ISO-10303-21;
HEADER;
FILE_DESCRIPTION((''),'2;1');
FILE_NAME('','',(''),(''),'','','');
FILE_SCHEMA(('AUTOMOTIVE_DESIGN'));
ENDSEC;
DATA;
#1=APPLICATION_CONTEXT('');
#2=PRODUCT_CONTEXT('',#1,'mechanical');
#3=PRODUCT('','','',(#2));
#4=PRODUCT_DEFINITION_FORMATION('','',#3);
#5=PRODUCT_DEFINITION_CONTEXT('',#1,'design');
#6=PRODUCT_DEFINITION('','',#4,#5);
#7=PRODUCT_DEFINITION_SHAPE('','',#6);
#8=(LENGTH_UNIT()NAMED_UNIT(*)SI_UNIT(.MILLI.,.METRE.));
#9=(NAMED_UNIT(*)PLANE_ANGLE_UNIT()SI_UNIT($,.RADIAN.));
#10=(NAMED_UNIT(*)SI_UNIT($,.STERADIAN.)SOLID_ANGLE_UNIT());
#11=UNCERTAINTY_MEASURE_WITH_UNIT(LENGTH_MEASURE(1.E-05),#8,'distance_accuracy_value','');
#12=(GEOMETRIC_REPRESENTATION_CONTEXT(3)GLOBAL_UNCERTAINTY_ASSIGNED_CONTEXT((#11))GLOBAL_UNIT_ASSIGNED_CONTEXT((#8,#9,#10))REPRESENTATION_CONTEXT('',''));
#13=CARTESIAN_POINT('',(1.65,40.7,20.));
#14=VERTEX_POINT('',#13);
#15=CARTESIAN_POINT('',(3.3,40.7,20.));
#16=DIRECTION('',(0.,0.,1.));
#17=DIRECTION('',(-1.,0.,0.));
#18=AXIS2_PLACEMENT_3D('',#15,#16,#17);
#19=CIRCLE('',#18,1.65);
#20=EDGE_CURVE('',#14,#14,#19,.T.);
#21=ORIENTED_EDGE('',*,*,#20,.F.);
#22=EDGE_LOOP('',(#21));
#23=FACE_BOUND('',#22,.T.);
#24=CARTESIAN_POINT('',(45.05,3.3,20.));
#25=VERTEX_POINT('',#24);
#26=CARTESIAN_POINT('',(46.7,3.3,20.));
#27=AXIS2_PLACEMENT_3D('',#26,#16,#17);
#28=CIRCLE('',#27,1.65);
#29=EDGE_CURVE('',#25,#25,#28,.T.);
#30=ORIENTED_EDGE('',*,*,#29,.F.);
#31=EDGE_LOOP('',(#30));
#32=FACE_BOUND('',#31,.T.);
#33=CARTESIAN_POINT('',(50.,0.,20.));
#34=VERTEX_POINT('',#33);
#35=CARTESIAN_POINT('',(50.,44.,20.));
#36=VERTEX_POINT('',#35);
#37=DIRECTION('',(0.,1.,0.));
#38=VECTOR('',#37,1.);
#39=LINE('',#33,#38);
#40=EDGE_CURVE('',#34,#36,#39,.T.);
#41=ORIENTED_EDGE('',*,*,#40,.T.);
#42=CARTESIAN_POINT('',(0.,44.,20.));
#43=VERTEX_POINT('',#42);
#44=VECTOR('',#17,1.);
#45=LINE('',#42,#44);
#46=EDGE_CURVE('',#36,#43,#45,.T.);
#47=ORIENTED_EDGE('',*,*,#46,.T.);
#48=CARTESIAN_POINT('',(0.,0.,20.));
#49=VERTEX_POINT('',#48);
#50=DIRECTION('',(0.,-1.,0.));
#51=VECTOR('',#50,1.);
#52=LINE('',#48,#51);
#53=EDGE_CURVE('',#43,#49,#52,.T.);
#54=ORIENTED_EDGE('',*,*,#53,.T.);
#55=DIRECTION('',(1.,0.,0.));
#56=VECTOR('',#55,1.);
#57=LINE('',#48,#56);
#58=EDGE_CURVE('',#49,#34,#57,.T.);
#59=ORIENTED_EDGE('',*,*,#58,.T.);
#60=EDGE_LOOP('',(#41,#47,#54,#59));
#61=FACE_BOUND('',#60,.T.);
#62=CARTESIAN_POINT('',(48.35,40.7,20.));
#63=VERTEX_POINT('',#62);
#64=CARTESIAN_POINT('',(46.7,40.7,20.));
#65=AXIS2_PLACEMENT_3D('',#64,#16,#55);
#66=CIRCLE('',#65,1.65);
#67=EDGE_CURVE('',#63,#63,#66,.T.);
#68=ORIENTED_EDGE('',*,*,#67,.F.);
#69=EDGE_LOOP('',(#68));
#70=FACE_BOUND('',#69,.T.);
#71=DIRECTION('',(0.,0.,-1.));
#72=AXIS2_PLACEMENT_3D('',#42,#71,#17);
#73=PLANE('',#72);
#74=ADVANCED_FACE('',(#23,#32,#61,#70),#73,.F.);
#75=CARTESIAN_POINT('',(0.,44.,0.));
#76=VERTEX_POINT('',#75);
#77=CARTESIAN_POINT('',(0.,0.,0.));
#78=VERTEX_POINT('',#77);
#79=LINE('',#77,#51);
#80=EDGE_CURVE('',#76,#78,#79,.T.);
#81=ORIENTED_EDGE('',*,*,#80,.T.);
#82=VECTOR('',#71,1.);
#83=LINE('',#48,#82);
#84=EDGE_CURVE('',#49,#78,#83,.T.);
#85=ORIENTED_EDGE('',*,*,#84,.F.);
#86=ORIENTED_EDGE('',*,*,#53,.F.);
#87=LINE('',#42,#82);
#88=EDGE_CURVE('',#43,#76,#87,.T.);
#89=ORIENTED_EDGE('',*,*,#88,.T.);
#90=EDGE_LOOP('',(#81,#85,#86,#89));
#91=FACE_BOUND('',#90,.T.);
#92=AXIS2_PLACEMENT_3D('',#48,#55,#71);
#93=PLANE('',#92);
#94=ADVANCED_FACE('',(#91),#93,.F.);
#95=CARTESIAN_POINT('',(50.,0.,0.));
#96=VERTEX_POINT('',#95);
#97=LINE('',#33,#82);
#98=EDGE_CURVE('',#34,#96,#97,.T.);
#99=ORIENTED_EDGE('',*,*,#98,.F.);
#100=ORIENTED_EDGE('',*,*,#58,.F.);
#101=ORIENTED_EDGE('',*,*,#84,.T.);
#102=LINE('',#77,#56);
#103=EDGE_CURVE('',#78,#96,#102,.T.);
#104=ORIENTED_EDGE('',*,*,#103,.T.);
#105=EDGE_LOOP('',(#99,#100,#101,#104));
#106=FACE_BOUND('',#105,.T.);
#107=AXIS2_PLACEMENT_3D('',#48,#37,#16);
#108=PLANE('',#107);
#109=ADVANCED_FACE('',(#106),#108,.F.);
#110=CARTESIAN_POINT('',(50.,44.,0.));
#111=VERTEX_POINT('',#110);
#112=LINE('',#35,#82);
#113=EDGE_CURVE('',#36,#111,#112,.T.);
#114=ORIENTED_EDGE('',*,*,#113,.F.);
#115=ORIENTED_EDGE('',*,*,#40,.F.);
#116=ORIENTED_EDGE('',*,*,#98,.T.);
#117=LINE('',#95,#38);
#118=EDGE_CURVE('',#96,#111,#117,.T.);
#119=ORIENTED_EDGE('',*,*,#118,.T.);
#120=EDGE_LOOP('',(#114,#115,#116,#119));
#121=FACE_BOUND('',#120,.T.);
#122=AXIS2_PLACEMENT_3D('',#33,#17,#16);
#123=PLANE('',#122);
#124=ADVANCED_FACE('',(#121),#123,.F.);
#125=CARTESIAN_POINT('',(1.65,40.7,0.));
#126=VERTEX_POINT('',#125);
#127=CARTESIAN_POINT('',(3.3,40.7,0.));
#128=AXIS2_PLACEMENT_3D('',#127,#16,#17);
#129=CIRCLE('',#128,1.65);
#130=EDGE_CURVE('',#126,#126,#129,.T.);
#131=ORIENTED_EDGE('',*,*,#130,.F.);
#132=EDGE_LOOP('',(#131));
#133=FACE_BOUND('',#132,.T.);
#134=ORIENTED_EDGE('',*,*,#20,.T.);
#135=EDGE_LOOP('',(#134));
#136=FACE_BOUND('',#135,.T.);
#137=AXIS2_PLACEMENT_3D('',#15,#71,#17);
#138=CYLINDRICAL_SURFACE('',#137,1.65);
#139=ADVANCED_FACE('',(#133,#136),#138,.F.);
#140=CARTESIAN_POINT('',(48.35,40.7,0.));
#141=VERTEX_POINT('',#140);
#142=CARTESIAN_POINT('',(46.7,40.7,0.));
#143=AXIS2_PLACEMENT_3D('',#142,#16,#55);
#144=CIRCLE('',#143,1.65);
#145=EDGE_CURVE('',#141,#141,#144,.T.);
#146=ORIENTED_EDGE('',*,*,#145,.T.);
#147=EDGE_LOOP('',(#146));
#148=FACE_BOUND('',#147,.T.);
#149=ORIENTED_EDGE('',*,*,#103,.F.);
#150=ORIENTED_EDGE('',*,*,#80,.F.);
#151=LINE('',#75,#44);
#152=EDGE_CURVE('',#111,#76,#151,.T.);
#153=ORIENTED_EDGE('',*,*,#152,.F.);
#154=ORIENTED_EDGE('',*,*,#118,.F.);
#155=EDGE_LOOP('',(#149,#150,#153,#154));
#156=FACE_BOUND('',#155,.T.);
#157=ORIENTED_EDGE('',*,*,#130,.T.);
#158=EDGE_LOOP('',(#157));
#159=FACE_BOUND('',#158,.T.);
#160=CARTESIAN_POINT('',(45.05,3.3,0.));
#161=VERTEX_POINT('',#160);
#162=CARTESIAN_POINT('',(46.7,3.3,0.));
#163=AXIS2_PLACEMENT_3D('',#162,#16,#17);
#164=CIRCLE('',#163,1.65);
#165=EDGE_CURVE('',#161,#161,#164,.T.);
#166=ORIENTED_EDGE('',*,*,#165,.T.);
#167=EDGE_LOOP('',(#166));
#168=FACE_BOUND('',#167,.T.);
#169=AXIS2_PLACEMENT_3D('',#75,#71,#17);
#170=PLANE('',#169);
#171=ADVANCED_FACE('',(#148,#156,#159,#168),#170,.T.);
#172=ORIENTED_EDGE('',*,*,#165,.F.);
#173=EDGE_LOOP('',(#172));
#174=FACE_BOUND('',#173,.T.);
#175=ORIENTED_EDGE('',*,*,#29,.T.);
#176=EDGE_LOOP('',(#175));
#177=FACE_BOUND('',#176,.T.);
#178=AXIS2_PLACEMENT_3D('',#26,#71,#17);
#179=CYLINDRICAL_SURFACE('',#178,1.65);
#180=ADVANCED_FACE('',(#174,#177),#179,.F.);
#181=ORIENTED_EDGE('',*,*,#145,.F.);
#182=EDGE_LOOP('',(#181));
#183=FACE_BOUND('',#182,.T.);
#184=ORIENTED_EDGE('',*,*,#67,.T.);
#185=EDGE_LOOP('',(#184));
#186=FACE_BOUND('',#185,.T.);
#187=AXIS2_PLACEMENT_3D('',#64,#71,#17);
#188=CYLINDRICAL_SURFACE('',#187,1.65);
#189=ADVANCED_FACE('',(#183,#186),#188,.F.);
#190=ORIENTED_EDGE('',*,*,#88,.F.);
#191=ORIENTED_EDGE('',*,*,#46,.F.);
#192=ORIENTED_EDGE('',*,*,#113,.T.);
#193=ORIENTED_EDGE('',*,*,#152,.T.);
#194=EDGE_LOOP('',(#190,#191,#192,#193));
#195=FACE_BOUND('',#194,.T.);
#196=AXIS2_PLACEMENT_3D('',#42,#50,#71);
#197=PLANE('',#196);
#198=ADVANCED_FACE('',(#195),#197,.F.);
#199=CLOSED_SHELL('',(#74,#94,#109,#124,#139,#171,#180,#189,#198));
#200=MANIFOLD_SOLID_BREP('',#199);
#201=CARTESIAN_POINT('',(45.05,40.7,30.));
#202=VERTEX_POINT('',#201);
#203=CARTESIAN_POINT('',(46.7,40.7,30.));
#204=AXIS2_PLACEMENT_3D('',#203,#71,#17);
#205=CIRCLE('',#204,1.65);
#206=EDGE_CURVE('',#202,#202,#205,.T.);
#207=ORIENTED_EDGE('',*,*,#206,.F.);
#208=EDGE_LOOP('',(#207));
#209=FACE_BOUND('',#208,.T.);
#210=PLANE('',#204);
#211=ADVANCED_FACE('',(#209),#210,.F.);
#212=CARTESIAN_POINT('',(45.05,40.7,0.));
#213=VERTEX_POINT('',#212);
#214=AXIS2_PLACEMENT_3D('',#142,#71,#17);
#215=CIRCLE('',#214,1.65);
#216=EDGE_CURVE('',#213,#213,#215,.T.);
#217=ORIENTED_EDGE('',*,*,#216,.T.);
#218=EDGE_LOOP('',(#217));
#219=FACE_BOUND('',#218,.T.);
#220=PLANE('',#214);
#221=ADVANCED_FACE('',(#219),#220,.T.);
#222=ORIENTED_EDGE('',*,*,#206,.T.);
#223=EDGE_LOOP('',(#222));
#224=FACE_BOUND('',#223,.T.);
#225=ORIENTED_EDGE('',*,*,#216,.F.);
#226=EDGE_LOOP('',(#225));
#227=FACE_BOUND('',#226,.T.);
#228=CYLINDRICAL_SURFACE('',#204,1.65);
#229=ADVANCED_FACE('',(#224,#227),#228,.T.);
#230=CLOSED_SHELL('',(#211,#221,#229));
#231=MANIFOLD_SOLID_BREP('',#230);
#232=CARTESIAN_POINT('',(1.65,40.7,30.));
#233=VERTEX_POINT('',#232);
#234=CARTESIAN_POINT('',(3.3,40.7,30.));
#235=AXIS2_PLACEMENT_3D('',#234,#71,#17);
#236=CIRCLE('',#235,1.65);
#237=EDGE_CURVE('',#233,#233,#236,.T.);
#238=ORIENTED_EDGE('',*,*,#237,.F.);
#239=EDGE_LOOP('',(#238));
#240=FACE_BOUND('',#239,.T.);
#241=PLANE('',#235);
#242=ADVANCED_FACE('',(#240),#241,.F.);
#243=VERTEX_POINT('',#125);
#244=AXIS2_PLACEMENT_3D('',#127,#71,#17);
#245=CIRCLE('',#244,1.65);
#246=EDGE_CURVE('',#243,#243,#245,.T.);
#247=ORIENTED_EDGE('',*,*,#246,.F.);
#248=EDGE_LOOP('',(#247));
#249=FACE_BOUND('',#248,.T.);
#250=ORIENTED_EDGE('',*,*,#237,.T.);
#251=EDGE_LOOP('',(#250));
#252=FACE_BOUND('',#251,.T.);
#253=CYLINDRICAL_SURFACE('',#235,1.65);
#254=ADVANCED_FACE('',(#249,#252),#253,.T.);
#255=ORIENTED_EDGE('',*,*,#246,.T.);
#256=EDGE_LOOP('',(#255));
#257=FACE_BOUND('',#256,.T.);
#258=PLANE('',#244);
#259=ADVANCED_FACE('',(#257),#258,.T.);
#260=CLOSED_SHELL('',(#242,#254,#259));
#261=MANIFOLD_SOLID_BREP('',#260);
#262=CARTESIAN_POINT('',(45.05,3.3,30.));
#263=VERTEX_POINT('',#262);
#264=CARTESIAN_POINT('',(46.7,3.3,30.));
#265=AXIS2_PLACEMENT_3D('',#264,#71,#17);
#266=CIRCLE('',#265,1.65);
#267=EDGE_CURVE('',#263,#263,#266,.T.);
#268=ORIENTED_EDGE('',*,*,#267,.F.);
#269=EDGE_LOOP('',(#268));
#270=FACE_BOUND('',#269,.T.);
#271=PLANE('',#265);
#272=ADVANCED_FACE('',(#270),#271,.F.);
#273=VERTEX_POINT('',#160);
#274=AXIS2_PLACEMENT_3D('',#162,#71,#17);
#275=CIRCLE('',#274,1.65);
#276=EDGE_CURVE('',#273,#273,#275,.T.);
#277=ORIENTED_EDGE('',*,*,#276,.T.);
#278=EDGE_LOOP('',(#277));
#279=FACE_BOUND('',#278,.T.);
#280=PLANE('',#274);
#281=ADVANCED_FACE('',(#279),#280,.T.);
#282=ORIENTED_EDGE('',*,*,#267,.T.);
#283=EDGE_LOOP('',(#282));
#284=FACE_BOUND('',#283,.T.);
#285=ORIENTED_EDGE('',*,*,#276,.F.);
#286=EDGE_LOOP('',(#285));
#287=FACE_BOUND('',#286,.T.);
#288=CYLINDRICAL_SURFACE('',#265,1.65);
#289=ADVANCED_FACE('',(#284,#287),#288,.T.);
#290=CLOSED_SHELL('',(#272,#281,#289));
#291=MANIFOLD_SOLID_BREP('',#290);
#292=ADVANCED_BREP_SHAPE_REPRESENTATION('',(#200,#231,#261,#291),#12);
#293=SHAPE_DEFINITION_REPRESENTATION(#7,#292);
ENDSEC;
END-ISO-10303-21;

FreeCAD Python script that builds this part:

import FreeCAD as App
import Part
import Sketcher
from FreeCAD import Vector
Q = App.Units.Quantity

doc = App.newDocument("Part")
body = doc.addObject("PartDesign::Body", "Body")

# Sketch on XY plane
sketch1 = doc.addObject("Sketcher::SketchObject", "Sketch")
body.addObject(sketch1)
sketch1.AttachmentSupport = (doc.XY_Plane, [""])
sketch1.MapMode = "FlatFace"
sketch1.addGeometry(Part.LineSegment(Vector(0, 44, 0), Vector(0, 0, 0)), False)
sketch1.addGeometry(Part.LineSegment(Vector(0, 0, 0), Vector(50, 0, 0)), False)
sketch1.addGeometry(Part.LineSegment(Vector(50, 0, 0), Vector(50, 44, 0)), False)
sketch1.addGeometry(Part.LineSegment(Vector(50, 44, 0), Vector(0, 44, 0)), False)
sketch1.addGeometry(Part.Circle(Vector(46.7, 3.3, 0), Vector(0, 0, 1), 1.6), False)
sketch1.addGeometry(Part.Circle(Vector(3.3, 40.7, 0), Vector(0, 0, 1), 1.6), False)
sketch1.addGeometry(Part.Circle(Vector(46.7, 40.7, 0), Vector(0, 0, 1), 1.6), False)
sketch1.addConstraint(Sketcher.Constraint("Coincident", 0, 2, 1, 1))
sketch1.addConstraint(Sketcher.Constraint("Coincident", 1, 2, 2, 1))
sketch1.addConstraint(Sketcher.Constraint("Coincident", 2, 2, 3, 1))
sketch1.addConstraint(Sketcher.Constraint("Coincident", 3, 2, 0, 1))
sketch1.addConstraint(Sketcher.Constraint("Vertical", 0))
sketch1.addConstraint(Sketcher.Constraint("Horizontal", 1))
sketch1.addConstraint(Sketcher.Constraint("Vertical", 2))
sketch1.addConstraint(Sketcher.Constraint("Horizontal", 3))
sketch1.addConstraint(Sketcher.Constraint("Coincident", 0, 2, -1, 1))
sketch1.addConstraint(Sketcher.Constraint("Equal", 4, 5))
sketch1.addConstraint(Sketcher.Constraint("Equal", 5, 6))
sketch1.addConstraint(Sketcher.Constraint("Horizontal", 5, 3, 6, 3))
sketch1.addConstraint(Sketcher.Constraint("Vertical", 4, 3, 6, 3))
sketch1.addConstraint(Sketcher.Constraint("Diameter", 4, Q("3.3 mm")))
sketch1.addConstraint(Sketcher.Constraint("DistanceX", 1, 1, 1, 2, Q("50 mm")))
sketch1.addConstraint(Sketcher.Constraint("DistanceY", 0, 2, 0, 1, Q("44 mm")))
sketch1.addConstraint(Sketcher.Constraint("DistanceX", -1, 1, 4, 3, Q("46.7 mm")))
sketch1.addConstraint(Sketcher.Constraint("DistanceY", -1, 1, 4, 3, Q("3.3 mm")))
sketch1.addConstraint(Sketcher.Constraint("DistanceX", -1, 1, 5, 3, Q("3.3 mm")))
sketch1.addConstraint(Sketcher.Constraint("DistanceY", -1, 1, 5, 3, Q("40.7 mm")))
pad1 = doc.addObject("PartDesign::Pad", "Pad")
body.addObject(pad1)
pad1.Profile = sketch1
pad1.Length = 20
body2 = doc.addObject("PartDesign::Body", "Body001")

# Sketch on XY plane
sketch2 = doc.addObject("Sketcher::SketchObject", "Sketch001")
body2.addObject(sketch2)
sketch2.AttachmentSupport = (doc.getObject("XY_Plane001"), [""])
sketch2.MapMode = "FlatFace"
sketch2.addGeometry(Part.Circle(Vector(46.7, 40.7, 0), Vector(0, 0, 1), 1.6), False)
sketch2.addConstraint(Sketcher.Constraint("Diameter", 0, Q("3.3 mm")))
sketch2.addConstraint(Sketcher.Constraint("DistanceX", -1, 1, 0, 3, Q("46.7 mm")))
sketch2.addConstraint(Sketcher.Constraint("DistanceY", -1, 1, 0, 3, Q("40.7 mm")))
pad2 = doc.addObject("PartDesign::Pad", "Pad001")
body2.addObject(pad2)
pad2.Profile = sketch2
pad2.Length = 30
body3 = doc.addObject("PartDesign::Body", "Body002")

# Sketch on XY plane
sketch3 = doc.addObject("Sketcher::SketchObject", "Sketch002")
body3.addObject(sketch3)
sketch3.AttachmentSupport = (doc.getObject("XY_Plane002"), [""])
sketch3.MapMode = "FlatFace"
sketch3.addGeometry(Part.Circle(Vector(46.7, 3.3, 0), Vector(0, 0, 1), 1.6), False)
sketch3.addConstraint(Sketcher.Constraint("Diameter", 0, Q("3.3 mm")))
sketch3.addConstraint(Sketcher.Constraint("DistanceX", -1, 1, 0, 3, Q("46.7 mm")))
sketch3.addConstraint(Sketcher.Constraint("DistanceY", -1, 1, 0, 3, Q("3.3 mm")))
pad3 = doc.addObject("PartDesign::Pad", "Pad002")
body3.addObject(pad3)
pad3.Profile = sketch3
pad3.Length = 30
body4 = doc.addObject("PartDesign::Body", "Body003")

# Sketch on XY plane
sketch4 = doc.addObject("Sketcher::SketchObject", "Sketch003")
body4.addObject(sketch4)
sketch4.AttachmentSupport = (doc.getObject("XY_Plane003"), [""])
sketch4.MapMode = "FlatFace"
sketch4.addGeometry(Part.Circle(Vector(3.3, 40.7, 0), Vector(0, 0, 1), 1.6), False)
sketch4.addConstraint(Sketcher.Constraint("Diameter", 0, Q("3.3 mm")))
sketch4.addConstraint(Sketcher.Constraint("DistanceX", -1, 1, 0, 3, Q("3.3 mm")))
sketch4.addConstraint(Sketcher.Constraint("DistanceY", -1, 1, 0, 3, Q("40.7 mm")))
pad4 = doc.addObject("PartDesign::Pad", "Pad003")
body4.addObject(pad4)
pad4.Profile = sketch4
pad4.Length = 30

doc.recompute()
